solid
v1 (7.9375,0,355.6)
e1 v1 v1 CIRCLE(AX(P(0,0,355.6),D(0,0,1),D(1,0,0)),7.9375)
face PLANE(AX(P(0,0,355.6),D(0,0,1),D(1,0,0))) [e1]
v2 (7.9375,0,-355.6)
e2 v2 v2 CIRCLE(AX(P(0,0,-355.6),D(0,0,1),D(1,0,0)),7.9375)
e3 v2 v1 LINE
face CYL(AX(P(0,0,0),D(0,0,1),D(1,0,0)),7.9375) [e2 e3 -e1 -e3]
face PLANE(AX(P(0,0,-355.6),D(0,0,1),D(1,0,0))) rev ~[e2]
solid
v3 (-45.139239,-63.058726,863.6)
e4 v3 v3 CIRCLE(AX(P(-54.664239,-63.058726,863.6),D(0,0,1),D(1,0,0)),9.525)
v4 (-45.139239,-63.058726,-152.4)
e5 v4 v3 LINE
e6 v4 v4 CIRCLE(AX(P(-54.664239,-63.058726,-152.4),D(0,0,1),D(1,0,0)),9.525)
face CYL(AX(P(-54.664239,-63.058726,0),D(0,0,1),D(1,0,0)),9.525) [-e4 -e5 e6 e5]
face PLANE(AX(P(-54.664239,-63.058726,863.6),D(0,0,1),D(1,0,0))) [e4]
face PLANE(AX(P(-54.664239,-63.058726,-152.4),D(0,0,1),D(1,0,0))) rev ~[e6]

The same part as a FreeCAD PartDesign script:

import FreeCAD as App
import Part
import Sketcher
from FreeCAD import Vector
Q = App.Units.Quantity

doc = App.newDocument("Part")
body = doc.addObject("PartDesign::Body", "Body")

# Sketch on XY plane
sketch1 = body.newObject("Sketcher::SketchObject", "Sketch")
sketch1.AttachmentSupport = (doc.getObject("XY_Plane"), [""])
sketch1.MapMode = "FlatFace"
sketch1.addGeometry(Part.Circle(Vector(0, 0, 0), Vector(0, 0, 1), 7.9375), False)
sketch1.addConstraint(Sketcher.Constraint("Coincident", 0, 3, -1, 1))
sketch1.addConstraint(Sketcher.Constraint("Diameter", 0, Q("0.625 in")))
pad1 = body.newObject("PartDesign::Pad", "Pad")
pad1.Profile = sketch1
pad1.Type = "TwoLengths"
pad1.Length = Q("14 in")
pad1.Length2 = Q("14 in")
body2 = doc.addObject("PartDesign::Body", "Body001")

# Sketch on XY plane
sketch2 = body2.newObject("Sketcher::SketchObject", "Sketch001")
sketch2.AttachmentSupport = (doc.getObject("XY_Plane001"), [""])
sketch2.MapMode = "FlatFace"
sketch2.addGeometry(Part.Circle(Vector(-54.664239, -63.058726, 0), Vector(0, 0, 1), 9.525), False)
sketch2.addConstraint(Sketcher.Constraint("Diameter", 0, Q("0.75 in")))
sketch2.addConstraint(Sketcher.Constraint("DistanceX", 0, 3, -1, 1, Q("54.664239 mm")))
sketch2.addConstraint(Sketcher.Constraint("DistanceY", 0, 3, -1, 1, Q("63.058726 mm")))
pad2 = body2.newObject("PartDesign::Pad", "Pad001")
pad2.Profile = sketch2
pad2.Type = "TwoLengths"
pad2.Length = Q("34 in")
pad2.Length2 = Q("6 in")

doc.recompute()
